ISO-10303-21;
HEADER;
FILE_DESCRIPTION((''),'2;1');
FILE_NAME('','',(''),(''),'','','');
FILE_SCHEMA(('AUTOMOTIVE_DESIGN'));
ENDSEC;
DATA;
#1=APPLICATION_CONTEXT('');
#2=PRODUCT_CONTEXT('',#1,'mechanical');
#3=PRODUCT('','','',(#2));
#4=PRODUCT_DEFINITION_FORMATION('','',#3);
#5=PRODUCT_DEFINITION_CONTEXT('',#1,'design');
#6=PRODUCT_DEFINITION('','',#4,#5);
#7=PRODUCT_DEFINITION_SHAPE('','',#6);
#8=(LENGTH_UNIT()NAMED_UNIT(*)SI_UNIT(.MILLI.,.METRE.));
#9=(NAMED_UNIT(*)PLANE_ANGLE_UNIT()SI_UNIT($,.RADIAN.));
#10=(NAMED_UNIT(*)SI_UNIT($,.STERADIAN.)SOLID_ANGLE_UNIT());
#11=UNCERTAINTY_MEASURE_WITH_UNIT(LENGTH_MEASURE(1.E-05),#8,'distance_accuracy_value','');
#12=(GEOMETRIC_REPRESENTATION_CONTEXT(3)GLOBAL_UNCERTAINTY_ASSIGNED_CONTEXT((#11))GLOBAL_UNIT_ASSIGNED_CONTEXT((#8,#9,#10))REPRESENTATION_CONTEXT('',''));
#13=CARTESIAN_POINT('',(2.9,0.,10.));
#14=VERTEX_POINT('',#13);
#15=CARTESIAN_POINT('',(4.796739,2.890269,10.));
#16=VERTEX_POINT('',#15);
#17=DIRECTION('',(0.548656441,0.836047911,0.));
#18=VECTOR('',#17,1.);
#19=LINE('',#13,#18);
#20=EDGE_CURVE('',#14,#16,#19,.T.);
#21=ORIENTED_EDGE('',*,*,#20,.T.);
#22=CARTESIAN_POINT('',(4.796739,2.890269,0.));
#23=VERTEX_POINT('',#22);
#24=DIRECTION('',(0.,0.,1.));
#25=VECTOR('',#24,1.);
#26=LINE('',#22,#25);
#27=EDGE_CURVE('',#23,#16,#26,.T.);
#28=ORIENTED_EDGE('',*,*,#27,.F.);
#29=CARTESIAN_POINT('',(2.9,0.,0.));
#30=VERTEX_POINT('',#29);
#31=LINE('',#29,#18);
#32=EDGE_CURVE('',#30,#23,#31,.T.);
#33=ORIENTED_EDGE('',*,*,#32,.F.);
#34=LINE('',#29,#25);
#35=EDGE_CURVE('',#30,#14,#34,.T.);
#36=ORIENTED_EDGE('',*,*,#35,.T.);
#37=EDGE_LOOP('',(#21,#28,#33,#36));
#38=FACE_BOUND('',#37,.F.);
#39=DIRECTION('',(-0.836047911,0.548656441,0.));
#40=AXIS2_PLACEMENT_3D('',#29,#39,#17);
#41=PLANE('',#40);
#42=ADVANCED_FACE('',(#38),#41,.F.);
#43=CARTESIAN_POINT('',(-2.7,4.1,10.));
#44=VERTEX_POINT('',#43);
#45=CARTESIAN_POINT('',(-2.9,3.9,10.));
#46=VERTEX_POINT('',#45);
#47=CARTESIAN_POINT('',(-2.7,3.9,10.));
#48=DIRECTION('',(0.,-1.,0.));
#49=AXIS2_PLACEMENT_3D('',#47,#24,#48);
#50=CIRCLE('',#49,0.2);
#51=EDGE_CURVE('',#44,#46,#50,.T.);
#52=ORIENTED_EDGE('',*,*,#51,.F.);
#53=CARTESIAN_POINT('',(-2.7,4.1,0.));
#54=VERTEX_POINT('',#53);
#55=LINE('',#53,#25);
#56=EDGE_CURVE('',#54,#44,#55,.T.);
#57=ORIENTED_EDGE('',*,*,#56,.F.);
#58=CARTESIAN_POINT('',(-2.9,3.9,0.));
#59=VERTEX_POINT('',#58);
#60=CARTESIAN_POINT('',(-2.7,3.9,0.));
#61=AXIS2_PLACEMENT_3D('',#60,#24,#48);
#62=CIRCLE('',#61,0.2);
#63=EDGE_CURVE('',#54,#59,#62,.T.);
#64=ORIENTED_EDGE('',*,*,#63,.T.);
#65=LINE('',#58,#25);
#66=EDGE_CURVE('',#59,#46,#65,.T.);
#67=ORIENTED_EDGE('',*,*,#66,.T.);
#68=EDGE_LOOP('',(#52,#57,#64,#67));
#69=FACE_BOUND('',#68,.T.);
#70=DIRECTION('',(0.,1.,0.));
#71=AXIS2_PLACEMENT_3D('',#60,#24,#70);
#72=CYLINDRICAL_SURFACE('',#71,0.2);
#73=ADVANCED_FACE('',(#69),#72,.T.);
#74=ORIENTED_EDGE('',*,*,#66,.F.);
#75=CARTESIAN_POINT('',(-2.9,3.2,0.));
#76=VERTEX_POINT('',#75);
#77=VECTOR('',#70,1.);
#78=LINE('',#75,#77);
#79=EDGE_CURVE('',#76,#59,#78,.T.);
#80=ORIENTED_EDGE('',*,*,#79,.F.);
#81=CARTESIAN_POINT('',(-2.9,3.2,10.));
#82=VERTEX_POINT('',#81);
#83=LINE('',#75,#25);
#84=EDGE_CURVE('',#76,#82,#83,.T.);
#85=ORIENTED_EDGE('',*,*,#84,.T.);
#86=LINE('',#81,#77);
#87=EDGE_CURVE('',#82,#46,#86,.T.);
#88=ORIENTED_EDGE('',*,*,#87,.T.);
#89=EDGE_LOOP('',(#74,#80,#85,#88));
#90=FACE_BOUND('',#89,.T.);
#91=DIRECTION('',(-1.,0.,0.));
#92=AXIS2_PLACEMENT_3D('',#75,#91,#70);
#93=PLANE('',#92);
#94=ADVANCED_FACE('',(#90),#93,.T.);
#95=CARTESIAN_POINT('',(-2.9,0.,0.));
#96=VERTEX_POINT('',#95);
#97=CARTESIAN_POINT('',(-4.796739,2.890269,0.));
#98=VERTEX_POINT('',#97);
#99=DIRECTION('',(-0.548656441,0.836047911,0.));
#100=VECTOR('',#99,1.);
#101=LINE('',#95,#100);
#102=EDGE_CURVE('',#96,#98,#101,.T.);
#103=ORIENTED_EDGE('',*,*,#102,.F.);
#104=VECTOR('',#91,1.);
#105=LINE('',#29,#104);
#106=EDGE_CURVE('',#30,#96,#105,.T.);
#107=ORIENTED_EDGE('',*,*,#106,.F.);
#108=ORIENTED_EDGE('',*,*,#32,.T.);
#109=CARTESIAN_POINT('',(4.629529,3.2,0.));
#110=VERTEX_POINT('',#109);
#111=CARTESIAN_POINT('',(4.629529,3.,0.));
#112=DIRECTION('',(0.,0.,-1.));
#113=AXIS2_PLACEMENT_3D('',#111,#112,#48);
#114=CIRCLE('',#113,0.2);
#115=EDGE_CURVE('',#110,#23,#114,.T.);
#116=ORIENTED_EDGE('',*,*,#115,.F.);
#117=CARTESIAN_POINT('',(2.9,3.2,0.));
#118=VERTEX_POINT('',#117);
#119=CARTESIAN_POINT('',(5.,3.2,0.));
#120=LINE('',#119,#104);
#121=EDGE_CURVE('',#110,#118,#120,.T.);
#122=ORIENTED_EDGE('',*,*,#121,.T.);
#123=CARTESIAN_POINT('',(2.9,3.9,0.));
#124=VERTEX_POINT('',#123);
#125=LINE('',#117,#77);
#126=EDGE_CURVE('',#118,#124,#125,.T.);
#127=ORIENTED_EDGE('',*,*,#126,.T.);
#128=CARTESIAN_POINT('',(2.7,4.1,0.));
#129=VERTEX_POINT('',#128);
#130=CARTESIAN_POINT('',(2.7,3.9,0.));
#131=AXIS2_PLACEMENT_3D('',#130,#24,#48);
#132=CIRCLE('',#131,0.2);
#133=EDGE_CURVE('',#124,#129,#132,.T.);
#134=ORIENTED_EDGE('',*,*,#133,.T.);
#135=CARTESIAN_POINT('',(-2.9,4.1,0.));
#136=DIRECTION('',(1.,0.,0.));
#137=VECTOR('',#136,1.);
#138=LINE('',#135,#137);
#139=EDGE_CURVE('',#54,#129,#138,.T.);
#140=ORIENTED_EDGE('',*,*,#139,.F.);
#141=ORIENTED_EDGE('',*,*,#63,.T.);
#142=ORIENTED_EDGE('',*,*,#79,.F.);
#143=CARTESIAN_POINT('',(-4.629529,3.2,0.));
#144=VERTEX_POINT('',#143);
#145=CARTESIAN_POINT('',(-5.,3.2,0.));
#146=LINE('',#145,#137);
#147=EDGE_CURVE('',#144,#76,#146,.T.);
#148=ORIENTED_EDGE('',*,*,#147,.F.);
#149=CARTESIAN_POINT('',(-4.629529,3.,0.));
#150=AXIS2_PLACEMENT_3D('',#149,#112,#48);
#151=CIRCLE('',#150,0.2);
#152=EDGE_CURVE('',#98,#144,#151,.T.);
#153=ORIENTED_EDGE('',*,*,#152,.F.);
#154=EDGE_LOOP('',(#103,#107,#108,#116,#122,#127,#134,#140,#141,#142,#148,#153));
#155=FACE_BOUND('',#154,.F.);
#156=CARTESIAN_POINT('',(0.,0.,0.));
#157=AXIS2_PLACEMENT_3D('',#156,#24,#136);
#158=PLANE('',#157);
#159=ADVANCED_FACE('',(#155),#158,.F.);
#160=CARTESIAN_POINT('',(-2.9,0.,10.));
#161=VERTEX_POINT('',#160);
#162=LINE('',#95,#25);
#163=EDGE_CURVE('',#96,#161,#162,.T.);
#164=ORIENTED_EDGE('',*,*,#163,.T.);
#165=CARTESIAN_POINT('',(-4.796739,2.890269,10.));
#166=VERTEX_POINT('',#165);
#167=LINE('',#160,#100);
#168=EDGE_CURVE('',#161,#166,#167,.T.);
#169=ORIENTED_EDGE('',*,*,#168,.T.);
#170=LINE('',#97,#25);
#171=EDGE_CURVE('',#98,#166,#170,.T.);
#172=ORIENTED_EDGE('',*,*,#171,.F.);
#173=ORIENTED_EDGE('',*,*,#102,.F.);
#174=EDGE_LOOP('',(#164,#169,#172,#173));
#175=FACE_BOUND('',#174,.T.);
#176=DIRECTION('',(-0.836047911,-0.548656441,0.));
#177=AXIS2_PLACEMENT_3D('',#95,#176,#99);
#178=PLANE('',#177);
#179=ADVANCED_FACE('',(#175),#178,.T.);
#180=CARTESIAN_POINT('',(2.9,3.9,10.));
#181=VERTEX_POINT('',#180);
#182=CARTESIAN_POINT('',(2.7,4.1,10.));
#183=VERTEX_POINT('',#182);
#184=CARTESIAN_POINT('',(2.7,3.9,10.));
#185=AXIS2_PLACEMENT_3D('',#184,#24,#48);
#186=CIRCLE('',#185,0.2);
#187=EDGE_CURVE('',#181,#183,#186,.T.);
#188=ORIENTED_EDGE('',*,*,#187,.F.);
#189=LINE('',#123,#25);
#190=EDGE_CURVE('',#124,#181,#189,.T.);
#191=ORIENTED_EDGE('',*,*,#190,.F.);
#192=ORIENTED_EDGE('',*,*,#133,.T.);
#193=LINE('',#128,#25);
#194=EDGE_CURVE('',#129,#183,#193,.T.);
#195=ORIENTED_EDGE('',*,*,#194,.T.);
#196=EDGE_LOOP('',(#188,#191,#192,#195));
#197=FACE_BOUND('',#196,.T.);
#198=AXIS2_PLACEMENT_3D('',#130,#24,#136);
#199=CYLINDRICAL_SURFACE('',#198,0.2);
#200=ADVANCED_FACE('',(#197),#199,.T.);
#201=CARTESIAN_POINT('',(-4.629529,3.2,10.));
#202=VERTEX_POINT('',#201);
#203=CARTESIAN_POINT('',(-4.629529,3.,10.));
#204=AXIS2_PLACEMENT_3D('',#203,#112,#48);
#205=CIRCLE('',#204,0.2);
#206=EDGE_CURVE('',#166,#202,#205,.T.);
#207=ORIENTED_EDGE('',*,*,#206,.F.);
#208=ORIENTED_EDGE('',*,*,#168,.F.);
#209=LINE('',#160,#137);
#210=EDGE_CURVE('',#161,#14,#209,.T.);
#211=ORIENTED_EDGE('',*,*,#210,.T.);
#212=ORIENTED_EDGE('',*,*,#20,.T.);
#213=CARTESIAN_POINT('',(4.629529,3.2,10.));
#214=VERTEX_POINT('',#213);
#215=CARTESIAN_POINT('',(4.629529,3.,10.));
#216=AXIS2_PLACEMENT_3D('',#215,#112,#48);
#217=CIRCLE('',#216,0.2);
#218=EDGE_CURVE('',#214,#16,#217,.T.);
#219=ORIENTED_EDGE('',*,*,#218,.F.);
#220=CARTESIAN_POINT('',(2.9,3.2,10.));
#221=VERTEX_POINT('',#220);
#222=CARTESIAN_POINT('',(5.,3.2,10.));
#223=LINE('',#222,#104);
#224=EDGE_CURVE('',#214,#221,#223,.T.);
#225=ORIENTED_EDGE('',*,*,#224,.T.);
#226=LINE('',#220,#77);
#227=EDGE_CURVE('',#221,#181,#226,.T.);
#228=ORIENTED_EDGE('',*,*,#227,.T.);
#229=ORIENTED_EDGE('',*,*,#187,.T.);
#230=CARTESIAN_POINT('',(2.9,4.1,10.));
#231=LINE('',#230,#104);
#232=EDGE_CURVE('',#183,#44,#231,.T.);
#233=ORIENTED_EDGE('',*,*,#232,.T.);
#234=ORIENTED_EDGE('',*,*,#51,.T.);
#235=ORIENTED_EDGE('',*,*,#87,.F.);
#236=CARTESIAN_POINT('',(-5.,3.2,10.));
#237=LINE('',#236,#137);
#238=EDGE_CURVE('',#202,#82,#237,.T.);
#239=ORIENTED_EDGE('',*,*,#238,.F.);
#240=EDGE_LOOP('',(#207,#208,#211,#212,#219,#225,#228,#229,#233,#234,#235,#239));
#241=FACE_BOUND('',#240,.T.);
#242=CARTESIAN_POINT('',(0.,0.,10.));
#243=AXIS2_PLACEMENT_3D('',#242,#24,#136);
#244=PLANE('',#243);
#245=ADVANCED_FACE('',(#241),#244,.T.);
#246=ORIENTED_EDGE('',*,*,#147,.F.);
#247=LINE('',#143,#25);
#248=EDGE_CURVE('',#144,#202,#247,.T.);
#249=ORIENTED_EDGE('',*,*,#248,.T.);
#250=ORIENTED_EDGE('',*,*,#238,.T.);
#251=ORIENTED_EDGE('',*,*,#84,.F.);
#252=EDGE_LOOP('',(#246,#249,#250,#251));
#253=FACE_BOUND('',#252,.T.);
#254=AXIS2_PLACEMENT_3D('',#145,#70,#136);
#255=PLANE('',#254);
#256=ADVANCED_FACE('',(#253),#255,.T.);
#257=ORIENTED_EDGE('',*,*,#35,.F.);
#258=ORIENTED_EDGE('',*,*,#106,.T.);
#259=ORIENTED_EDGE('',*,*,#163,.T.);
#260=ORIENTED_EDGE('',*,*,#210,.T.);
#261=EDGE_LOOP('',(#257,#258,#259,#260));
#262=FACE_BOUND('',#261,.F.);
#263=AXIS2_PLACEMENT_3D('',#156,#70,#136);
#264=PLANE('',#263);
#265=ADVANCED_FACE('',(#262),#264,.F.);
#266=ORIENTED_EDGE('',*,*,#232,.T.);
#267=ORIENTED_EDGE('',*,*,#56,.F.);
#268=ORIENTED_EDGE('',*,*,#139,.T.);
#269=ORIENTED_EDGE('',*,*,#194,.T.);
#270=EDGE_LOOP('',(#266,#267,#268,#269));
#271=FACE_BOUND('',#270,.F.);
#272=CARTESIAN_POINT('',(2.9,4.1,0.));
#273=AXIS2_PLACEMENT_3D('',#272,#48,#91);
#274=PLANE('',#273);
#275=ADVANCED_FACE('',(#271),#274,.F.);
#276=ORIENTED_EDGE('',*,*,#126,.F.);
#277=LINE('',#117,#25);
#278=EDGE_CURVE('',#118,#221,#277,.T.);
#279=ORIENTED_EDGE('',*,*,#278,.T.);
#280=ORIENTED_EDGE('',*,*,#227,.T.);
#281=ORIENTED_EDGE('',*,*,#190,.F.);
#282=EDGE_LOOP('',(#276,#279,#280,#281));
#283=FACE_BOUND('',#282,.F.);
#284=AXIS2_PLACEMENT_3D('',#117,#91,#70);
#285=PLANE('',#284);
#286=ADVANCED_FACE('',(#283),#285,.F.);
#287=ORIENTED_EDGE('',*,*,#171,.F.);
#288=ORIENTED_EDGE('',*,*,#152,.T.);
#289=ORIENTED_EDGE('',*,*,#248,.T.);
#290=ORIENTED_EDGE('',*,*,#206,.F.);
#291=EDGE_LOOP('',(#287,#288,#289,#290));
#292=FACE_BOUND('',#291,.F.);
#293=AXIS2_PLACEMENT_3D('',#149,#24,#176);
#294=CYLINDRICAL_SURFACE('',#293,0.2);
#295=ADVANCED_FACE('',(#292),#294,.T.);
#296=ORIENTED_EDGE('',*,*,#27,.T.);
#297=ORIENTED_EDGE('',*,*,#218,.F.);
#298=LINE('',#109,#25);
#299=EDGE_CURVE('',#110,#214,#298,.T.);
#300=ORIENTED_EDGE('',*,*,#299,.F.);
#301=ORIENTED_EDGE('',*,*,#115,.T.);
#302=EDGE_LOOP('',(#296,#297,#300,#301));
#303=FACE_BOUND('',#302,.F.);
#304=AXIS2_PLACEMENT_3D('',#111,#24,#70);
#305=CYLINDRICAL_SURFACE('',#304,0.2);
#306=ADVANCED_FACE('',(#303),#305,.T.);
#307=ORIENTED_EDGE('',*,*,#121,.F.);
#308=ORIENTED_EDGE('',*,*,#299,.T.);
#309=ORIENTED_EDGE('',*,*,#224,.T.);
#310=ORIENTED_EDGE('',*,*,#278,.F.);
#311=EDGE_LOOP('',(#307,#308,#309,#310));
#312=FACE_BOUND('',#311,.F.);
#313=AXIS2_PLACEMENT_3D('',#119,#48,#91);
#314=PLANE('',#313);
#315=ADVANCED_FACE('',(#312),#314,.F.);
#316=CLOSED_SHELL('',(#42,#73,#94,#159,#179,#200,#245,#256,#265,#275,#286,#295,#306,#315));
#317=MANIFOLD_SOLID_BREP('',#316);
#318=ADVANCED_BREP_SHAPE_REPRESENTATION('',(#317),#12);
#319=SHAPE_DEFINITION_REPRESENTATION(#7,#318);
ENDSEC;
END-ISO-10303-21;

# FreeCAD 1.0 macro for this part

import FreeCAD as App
import Part
import Sketcher
from FreeCAD import Vector
Q = App.Units.Quantity


def edges_at(feature, points):
    """Names of the edges that pass closest to the given points."""
    edges = feature.Shape.Edges
    near = lambda p: min(range(len(edges)), key=lambda i: edges[i].distToShape(Part.Vertex(*p))[0])
    return sorted({f"Edge{near(p) + 1}" for p in points})

doc = App.newDocument("Part")
body = doc.addObject("PartDesign::Body", "Body")

# Sketch on XY plane
sketch1 = body.newObject("Sketcher::SketchObject", "Sketch")
sketch1.AttachmentSupport = (doc.getObject("XY_Plane"), [""])
sketch1.MapMode = "FlatFace"
sketch1.addGeometry([
    Part.LineSegment(Vector(5, 3.2, 0), Vector(2.9, 3.2, 0)),  # 0
    Part.LineSegment(Vector(2.9, 3.2, 0), Vector(2.9, 4.1, 0)),  # 1
    Part.LineSegment(Vector(2.9, 4.1, 0), Vector(-2.9, 4.1, 0)),  # 2
    Part.LineSegment(Vector(-2.9, 4.1, 0), Vector(-2.9, 3.2, 0)),  # 3
    Part.LineSegment(Vector(-2.9, 3.2, 0), Vector(-5, 3.2, 0)),  # 4
    Part.LineSegment(Vector(-5, 3.2, 0), Vector(-2.9, 0, 0)),  # 5
    Part.LineSegment(Vector(-2.9, 0, 0), Vector(2.9, 0, 0)),  # 6
    Part.LineSegment(Vector(2.9, 0, 0), Vector(5, 3.2, 0)),  # 7
], False)
sketch1.addConstraint([
    Sketcher.Constraint("Coincident", 0, 2, 1, 1),
    Sketcher.Constraint("Coincident", 1, 2, 2, 1),
    Sketcher.Constraint("Coincident", 2, 2, 3, 1),
    Sketcher.Constraint("Coincident", 3, 2, 4, 1),
    Sketcher.Constraint("Coincident", 4, 2, 5, 1),
    Sketcher.Constraint("Coincident", 5, 2, 6, 1),
    Sketcher.Constraint("Coincident", 6, 2, 7, 1),
    Sketcher.Constraint("Coincident", 7, 2, 0, 1),
    Sketcher.Constraint("Horizontal", 0),
    Sketcher.Constraint("Vertical", 1),
    Sketcher.Constraint("Horizontal", 2),
    Sketcher.Constraint("Vertical", 3),
    Sketcher.Constraint("Horizontal", 4),
    Sketcher.Constraint("Horizontal", 6),
    Sketcher.Constraint("Symmetric", 5, 2, 6, 2, -1, 1),
    Sketcher.Constraint("Symmetric", 0, 2, 3, 2, -2),
    Sketcher.Constraint("Vertical", 3, 2, 5, 2),
    Sketcher.Constraint("Equal", 0, 4),
    Sketcher.Constraint("DistanceX", 4, 2, -1, 1, Q("5 mm")),
    Sketcher.Constraint("DistanceX", -1, 1, 0, 2, Q("2.9 mm")),
    Sketcher.Constraint("DistanceY", -1, 1, 0, 2, Q("3.2 mm")),
    Sketcher.Constraint("DistanceY", -1, 1, 1, 2, Q("4.1 mm")),
])
pad1 = body.newObject("PartDesign::Pad", "Pad")
pad1.Profile = sketch1
pad1.Length = 10
doc.recompute()

fillet = body.newObject("PartDesign::Fillet", "Fillet")
fillet.Base = (pad1, edges_at(pad1, [(5, 3.2, 5), (-5, 3.2, 5)]))
fillet.Radius = 0.2
doc.recompute()

fillet2 = body.newObject("PartDesign::Fillet", "Fillet001")
fillet2.Base = (fillet, edges_at(fillet, [(-2.9, 4.1, 5), (2.9, 4.1, 5)]))
fillet2.Radius = 0.2

doc.recompute()
